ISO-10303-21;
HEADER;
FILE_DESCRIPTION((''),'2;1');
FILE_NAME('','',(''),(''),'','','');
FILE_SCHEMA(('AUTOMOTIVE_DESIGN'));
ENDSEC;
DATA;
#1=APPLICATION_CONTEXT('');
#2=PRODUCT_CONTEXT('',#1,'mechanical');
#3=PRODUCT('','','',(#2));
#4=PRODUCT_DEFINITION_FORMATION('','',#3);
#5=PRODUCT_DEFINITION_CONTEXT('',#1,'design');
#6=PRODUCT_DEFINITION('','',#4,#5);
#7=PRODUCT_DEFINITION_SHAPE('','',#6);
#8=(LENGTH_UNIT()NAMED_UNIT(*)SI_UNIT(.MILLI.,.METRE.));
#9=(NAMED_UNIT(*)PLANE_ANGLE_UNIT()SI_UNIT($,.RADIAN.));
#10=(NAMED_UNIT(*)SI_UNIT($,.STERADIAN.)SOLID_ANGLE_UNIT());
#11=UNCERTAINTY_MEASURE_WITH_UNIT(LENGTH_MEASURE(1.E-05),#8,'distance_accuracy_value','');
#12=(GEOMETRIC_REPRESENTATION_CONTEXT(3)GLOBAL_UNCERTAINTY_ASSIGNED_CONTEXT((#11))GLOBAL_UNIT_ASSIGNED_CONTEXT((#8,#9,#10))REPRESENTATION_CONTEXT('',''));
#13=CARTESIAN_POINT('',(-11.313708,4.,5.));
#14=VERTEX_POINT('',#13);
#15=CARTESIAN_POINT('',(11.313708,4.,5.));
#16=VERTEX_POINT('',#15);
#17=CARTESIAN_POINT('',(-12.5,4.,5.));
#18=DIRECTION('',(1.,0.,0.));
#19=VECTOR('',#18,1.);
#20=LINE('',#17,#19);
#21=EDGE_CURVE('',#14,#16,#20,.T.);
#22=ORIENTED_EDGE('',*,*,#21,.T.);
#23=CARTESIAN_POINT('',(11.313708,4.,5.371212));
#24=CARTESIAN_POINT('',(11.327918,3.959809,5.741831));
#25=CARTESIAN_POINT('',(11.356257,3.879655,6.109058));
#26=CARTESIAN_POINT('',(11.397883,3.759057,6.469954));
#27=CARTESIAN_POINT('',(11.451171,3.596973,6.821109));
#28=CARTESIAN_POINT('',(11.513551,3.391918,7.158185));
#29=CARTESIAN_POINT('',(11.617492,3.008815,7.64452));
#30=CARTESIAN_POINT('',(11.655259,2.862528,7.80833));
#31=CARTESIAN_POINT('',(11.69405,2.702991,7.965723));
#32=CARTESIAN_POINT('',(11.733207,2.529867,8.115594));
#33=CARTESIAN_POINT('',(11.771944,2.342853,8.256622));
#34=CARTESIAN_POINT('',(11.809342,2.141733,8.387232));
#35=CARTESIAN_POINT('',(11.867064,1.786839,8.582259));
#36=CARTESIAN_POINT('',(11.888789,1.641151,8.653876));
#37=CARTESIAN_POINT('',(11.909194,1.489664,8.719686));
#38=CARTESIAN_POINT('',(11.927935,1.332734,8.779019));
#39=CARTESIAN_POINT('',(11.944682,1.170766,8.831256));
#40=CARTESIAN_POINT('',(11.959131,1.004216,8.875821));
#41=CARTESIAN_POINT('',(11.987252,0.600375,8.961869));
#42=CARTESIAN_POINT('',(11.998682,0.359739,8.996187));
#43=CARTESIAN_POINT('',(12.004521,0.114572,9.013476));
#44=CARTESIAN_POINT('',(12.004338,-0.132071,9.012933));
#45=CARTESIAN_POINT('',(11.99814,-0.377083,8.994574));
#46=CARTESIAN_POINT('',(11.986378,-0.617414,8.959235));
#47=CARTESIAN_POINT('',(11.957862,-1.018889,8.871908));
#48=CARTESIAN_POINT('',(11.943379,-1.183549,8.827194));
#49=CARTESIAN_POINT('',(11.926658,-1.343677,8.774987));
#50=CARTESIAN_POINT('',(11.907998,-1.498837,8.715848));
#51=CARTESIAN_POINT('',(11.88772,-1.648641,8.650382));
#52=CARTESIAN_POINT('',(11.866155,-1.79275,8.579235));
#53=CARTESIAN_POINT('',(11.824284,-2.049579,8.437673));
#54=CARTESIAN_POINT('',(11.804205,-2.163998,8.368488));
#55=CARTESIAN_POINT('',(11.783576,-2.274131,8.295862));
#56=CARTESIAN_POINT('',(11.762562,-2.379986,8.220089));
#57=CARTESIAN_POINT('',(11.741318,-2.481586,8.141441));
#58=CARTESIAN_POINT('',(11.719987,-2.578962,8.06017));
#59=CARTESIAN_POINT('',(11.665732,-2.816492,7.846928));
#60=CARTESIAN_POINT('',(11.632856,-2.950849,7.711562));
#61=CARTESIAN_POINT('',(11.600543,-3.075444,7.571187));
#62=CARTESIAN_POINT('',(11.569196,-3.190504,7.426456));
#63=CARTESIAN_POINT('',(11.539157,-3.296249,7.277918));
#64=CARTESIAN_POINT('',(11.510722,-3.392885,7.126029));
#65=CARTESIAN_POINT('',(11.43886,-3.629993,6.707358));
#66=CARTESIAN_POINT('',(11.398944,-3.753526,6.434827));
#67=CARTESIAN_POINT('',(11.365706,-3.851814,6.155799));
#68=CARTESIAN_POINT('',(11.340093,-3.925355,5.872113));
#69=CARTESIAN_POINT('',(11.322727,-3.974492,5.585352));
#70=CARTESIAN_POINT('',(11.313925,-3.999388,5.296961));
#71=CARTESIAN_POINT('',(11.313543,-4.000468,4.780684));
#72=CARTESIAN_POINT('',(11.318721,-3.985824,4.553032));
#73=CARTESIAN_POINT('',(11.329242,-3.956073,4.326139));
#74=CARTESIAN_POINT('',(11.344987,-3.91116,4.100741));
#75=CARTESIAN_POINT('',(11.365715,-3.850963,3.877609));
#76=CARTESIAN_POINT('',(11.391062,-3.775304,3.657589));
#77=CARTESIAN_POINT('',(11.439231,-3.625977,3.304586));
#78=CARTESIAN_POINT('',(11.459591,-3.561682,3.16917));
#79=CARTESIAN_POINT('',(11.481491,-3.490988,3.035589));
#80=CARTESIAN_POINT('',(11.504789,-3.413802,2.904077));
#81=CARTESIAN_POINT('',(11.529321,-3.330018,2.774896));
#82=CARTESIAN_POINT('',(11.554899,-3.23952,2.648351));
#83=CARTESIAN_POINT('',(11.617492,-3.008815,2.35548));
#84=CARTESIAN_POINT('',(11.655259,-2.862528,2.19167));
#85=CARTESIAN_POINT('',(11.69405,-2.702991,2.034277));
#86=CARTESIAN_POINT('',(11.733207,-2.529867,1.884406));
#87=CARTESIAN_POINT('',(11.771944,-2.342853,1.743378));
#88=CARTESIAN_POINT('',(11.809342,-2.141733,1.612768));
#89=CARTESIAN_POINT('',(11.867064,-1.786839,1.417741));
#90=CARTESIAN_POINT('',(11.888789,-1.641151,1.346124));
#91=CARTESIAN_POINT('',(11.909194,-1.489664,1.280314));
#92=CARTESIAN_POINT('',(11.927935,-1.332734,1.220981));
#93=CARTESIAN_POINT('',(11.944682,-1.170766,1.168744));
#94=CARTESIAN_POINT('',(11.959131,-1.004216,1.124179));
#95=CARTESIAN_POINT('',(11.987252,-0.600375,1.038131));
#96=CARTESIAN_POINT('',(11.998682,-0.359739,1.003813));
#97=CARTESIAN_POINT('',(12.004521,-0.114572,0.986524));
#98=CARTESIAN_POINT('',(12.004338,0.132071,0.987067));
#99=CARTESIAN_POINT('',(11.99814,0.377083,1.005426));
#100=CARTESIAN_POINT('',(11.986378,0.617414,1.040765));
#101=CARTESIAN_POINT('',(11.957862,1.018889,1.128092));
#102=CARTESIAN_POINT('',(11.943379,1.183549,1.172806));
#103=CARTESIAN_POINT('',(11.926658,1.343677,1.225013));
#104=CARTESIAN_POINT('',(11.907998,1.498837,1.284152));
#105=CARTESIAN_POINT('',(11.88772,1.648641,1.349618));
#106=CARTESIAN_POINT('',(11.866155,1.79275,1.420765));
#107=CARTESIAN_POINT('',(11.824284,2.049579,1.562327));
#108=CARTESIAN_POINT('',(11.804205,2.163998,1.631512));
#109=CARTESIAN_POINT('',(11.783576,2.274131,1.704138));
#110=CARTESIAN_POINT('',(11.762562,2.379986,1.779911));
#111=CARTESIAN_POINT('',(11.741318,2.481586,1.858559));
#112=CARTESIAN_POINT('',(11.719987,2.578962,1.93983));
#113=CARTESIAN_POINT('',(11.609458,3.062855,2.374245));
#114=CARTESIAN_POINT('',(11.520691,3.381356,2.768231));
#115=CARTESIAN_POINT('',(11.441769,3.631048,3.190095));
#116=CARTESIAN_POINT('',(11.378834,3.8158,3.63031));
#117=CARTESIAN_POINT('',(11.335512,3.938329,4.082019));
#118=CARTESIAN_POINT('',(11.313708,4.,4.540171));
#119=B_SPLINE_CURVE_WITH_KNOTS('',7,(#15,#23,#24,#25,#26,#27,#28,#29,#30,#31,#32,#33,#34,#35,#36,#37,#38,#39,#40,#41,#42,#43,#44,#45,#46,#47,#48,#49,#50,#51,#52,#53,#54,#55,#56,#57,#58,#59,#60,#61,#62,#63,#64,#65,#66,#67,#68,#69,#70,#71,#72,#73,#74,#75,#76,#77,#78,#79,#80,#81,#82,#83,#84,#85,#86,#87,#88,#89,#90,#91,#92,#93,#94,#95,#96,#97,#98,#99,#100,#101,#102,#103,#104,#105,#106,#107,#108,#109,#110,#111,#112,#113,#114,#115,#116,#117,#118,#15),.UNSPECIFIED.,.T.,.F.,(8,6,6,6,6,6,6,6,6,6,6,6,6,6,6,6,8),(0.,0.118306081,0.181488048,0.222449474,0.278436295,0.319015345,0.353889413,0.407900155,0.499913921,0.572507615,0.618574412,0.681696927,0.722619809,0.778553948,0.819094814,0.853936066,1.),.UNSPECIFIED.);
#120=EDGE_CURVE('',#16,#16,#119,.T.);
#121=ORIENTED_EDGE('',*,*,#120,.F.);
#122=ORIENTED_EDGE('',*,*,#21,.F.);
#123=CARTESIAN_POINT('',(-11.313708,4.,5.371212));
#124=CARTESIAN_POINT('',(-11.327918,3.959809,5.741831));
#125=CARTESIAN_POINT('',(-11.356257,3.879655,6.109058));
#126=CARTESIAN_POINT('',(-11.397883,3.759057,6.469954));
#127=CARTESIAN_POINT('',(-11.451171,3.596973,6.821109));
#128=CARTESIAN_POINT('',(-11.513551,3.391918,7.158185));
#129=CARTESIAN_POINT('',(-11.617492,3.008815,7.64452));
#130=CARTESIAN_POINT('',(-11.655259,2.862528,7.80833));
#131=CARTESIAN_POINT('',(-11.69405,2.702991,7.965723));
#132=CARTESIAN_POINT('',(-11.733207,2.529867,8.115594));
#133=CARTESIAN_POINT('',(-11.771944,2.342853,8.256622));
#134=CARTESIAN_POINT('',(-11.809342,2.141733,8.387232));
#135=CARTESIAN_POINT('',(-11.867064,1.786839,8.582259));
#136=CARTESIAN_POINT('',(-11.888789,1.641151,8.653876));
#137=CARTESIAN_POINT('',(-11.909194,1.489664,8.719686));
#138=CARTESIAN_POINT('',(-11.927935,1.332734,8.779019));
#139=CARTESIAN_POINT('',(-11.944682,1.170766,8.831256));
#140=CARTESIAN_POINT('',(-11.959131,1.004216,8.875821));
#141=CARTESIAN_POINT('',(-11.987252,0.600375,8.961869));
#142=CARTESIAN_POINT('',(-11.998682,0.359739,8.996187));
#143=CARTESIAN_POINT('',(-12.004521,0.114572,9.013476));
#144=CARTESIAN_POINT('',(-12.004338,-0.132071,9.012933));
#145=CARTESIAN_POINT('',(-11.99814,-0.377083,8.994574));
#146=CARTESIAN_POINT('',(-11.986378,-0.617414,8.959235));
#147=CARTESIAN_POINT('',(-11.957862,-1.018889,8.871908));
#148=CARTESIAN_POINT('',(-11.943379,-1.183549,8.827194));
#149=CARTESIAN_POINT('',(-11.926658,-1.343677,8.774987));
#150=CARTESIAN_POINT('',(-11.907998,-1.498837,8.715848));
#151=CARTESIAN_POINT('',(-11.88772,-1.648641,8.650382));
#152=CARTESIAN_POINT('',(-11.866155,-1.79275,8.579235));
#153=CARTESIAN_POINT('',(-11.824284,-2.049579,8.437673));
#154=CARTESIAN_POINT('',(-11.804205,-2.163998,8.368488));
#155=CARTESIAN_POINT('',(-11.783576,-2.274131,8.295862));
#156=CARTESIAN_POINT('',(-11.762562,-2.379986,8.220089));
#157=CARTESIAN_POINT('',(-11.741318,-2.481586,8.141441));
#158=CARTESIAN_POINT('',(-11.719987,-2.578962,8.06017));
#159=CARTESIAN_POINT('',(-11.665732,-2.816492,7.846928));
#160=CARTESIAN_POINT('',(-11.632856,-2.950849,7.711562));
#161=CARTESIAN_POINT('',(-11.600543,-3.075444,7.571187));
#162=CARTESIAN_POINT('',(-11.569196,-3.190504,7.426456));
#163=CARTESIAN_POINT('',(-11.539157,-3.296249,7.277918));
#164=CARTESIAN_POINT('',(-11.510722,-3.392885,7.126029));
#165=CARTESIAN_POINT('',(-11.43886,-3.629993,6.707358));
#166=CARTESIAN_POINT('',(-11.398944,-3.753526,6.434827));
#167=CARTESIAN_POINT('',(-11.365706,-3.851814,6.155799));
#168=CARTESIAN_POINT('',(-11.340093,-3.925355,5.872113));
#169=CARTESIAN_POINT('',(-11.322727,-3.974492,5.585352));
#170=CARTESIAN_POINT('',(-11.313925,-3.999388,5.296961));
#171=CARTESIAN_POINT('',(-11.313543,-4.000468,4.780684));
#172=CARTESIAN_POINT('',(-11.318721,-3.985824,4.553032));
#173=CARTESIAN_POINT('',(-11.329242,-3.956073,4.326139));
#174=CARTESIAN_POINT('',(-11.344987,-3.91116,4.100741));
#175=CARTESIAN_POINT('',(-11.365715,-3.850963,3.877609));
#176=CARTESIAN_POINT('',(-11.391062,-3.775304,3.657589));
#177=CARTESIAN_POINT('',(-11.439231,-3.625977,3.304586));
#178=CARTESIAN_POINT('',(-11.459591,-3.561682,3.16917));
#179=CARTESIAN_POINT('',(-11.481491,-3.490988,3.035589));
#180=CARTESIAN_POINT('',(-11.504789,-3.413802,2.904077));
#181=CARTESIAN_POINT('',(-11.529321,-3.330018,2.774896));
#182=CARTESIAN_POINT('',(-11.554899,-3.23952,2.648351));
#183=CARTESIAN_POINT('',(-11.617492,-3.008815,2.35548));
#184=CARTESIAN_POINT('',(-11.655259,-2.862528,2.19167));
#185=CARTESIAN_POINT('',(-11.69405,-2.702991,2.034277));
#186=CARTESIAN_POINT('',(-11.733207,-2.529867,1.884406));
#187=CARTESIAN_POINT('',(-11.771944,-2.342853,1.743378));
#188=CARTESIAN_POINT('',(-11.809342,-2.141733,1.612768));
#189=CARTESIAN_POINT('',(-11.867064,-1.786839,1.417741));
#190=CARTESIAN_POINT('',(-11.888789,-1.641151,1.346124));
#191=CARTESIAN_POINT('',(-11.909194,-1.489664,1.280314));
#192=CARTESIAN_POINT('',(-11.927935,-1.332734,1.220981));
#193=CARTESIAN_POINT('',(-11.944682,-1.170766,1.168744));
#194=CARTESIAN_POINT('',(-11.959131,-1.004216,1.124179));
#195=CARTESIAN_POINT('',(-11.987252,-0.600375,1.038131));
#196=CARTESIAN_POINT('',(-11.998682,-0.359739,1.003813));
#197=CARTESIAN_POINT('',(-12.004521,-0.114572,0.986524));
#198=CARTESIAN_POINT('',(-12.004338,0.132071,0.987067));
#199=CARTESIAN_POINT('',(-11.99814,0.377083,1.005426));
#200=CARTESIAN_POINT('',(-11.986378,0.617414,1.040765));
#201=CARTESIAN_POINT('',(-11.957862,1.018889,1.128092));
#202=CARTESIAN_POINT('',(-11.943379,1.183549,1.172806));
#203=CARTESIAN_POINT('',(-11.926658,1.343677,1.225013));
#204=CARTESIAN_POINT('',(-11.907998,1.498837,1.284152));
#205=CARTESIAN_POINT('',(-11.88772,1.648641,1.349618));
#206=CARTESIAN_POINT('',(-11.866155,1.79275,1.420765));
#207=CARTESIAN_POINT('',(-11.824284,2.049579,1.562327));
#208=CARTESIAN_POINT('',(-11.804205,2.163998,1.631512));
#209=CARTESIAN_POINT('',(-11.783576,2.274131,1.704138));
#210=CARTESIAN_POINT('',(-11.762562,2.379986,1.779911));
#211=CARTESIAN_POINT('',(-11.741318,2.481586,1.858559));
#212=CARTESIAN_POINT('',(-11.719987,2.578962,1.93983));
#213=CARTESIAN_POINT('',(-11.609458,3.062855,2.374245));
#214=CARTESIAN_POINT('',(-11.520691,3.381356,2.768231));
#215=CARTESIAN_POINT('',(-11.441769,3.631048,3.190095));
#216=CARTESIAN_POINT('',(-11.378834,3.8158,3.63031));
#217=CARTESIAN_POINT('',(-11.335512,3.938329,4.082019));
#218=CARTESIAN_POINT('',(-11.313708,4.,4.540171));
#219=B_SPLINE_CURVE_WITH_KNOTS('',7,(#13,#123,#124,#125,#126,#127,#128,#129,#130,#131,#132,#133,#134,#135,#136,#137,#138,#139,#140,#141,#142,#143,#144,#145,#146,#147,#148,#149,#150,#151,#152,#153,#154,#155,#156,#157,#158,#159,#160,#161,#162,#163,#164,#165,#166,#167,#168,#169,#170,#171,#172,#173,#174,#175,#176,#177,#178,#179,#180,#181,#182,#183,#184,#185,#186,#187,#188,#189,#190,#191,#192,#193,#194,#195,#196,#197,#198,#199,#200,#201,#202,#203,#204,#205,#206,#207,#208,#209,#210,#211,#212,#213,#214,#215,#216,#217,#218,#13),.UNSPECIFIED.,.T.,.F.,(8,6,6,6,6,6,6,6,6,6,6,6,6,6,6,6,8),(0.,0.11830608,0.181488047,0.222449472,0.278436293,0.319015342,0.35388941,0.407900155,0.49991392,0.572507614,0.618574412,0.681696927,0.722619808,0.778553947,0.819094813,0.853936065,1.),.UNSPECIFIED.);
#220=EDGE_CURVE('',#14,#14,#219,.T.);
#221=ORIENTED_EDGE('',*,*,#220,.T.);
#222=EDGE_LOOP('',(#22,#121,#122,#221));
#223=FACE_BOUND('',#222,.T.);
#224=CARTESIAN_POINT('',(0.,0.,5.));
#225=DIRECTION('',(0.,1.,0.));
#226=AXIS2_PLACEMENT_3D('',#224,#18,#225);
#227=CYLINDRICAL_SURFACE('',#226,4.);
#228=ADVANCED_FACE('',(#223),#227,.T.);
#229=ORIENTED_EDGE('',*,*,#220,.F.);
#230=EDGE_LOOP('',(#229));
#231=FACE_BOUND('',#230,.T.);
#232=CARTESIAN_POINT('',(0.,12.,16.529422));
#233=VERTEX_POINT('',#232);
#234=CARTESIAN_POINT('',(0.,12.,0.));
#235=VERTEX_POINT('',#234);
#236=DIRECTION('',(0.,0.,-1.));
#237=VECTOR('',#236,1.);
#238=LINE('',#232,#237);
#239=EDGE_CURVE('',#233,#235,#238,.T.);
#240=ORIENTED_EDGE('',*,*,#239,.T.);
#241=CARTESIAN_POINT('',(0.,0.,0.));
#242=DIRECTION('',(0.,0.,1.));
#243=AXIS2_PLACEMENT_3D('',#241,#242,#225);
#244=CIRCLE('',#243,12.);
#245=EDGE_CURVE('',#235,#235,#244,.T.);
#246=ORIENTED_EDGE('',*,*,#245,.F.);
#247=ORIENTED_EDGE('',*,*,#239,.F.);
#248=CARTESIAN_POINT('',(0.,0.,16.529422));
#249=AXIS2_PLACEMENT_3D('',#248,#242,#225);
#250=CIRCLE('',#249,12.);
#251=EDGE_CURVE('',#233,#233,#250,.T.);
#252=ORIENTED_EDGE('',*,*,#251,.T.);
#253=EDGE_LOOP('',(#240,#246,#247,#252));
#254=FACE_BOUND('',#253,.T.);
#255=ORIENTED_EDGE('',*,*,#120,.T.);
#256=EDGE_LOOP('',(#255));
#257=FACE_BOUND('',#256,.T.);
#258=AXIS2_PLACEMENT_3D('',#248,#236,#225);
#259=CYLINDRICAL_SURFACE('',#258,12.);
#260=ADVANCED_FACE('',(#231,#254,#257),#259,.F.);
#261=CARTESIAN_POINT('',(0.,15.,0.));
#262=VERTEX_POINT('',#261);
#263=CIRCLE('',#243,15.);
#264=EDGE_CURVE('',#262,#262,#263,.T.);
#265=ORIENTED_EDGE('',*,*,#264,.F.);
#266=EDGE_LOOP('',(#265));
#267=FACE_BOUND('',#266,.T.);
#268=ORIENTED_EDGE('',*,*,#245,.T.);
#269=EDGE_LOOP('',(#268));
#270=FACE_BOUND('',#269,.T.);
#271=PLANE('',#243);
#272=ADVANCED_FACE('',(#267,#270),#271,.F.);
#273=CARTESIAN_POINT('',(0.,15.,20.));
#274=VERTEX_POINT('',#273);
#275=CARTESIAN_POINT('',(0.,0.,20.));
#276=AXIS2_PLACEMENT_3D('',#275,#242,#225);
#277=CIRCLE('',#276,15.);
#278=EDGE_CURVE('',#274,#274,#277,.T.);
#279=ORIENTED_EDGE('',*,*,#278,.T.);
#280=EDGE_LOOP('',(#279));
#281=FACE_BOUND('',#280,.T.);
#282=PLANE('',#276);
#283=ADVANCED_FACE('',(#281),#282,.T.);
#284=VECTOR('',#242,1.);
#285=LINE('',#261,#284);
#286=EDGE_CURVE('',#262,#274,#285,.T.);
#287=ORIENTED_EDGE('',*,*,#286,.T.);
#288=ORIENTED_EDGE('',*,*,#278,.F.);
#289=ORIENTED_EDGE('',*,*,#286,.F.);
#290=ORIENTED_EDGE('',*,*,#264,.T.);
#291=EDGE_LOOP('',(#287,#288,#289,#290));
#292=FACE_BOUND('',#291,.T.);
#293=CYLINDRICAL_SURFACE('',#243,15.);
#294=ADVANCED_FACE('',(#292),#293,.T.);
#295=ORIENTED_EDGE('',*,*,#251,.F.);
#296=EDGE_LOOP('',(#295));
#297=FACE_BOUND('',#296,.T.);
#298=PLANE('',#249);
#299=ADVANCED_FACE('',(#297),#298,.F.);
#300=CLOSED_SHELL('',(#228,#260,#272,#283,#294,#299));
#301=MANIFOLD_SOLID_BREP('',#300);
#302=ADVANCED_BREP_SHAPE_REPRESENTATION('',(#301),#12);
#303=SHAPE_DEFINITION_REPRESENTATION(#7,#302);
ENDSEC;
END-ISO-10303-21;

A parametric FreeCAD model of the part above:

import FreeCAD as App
import Part
import Sketcher


def add_polygon(sketch, points):
    """Adds a closed chain of lines whose ends are joined by coincident constraints."""
    first, n = sketch.GeometryCount, len(points)
    for a, b in zip(points, points[1:] + points[:1]):
        sketch.addGeometry(Part.LineSegment(App.Vector(*a, 0), App.Vector(*b, 0)), False)
    for i in range(n):
        sketch.addConstraint(Sketcher.Constraint("Coincident", first + i, 2, first + (i + 1) % n, 1))

doc = App.newDocument("Part")
params = doc.addObject("Spreadsheet::Sheet", "Params")
for row, (alias, value) in enumerate([
    ("sketch1_width", "15 mm"),
    ("sketch1_width2", "12 mm"),
    ("sketch1_height", "20 mm"),
    ("revolution_angle", "360 deg"),
    ("sketch2_diameter", "8 mm"),
    ("pad1_length", "25 mm"),
], start=1):
    params.set(f"A{row}", alias)
    params.set(f"B{row}", "=" + value)
    params.setAlias(f"B{row}", alias)

body = doc.addObject("PartDesign::Body", "Body")

# Sketch on YZ plane
sketch1 = body.newObject("Sketcher::SketchObject", "Sketch")
sketch1.AttachmentSupport = (doc.getObject("YZ_Plane"), [""])
sketch1.MapMode = "FlatFace"
add_polygon(sketch1, [(15, 20), (0, 20), (0, 16.529422), (12, 16.529422), (12, 0), (15, 0)])  # lines 0-5
sketch1.addConstraint([
    Sketcher.Constraint("Horizontal", 0),
    Sketcher.Constraint("Vertical", 1),
    Sketcher.Constraint("Horizontal", 2),
    Sketcher.Constraint("Vertical", 3),
    Sketcher.Constraint("Horizontal", 4),
    Sketcher.Constraint("Vertical", 5),
    Sketcher.Constraint("PointOnObject", 0, 2, -2),
    Sketcher.Constraint("PointOnObject", 3, 2, -1),
    Sketcher.Constraint("DistanceX", 0, 2, 0, 1, 15.0),
    Sketcher.Constraint("DistanceX", 2, 1, 2, 2, 12.0),
    Sketcher.Constraint("DistanceY", 5, 1, 5, 2, 20.0),
    Sketcher.Constraint("DistanceY", 1, 2, 1, 1, 3.470578),
])
sketch1.setExpression("Constraints[14]", "Params.sketch1_width")
sketch1.setExpression("Constraints[15]", "Params.sketch1_width2")
sketch1.setExpression("Constraints[16]", "Params.sketch1_height")
revolution = body.newObject("PartDesign::Revolution", "Revolution")
revolution.Profile = sketch1
revolution.ReferenceAxis = (sketch1, ["V_Axis"])
revolution.setExpression("Angle", "Params.revolution_angle")

# Sketch on YZ plane
sketch2 = body.newObject("Sketcher::SketchObject", "Sketch001")
sketch2.AttachmentSupport = (doc.getObject("YZ_Plane"), [""])
sketch2.MapMode = "FlatFace"
sketch2.addGeometry(Part.Circle(App.Vector(0, 5, 0), App.Vector(0, 0, 1), 4), False)
sketch2.addConstraint([
    Sketcher.Constraint("PointOnObject", 0, 3, -2),
    Sketcher.Constraint("Diameter", 0, 8.0),
    Sketcher.Constraint("DistanceY", -1, 1, 0, 3, 5.0),
])
sketch2.setExpression("Constraints[1]", "Params.sketch2_diameter")
pad1 = body.newObject("PartDesign::Pad", "Pad")
pad1.Profile = sketch2
pad1.setExpression("Length", "Params.pad1_length")
pad1.Midplane = True

doc.recompute()
